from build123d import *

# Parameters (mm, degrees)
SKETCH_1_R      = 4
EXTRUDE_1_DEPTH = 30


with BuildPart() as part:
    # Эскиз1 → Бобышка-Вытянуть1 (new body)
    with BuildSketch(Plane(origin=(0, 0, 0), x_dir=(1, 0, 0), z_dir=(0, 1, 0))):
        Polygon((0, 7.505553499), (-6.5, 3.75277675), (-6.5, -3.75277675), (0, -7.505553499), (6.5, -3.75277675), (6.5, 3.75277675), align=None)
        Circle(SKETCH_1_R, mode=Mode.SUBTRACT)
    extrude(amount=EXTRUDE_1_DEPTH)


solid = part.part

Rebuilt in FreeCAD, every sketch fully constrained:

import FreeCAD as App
import Part
import Sketcher

V = App.Vector
Q = App.Units.Quantity


def add_polygon(sketch, points):
    """Adds a closed chain of lines whose ends are joined by coincident constraints."""
    first, n = sketch.GeometryCount, len(points)
    for a, b in zip(points, points[1:] + points[:1]):
        sketch.addGeometry(Part.LineSegment(App.Vector(*a, 0), App.Vector(*b, 0)), False)
    for i in range(n):
        sketch.addConstraint(Sketcher.Constraint("Coincident", first + i, 2, first + (i + 1) % n, 1))

doc = App.newDocument("Part")
body = doc.addObject("PartDesign::Body", "Body")

# Sketch on XZ plane
sketch1 = body.newObject("Sketcher::SketchObject", "Sketch")
sketch1.AttachmentSupport = (doc.getObject("XZ_Plane"), [""])
sketch1.MapMode = "FlatFace"
add_polygon(sketch1, [(0, -7.5), (-6.5, -3.8), (-6.5, 3.8), (0, 7.5), (6.5, 3.8), (6.5, -3.8)])  # lines 0-5
sketch1.addGeometry(Part.Circle(V(0, 0, 0), V(0, 0, 1), 4), False)  # 6
sketch1.addConstraint([
    Sketcher.Constraint("Vertical", 1),
    Sketcher.Constraint("Vertical", 4),
    Sketcher.Constraint("Coincident", 6, 3, -1, 1),
    Sketcher.Constraint("Symmetric", 0, 2, 3, 2, -1, 1),
    Sketcher.Constraint("Symmetric", 2, 2, 5, 2, -1, 1),
    Sketcher.Constraint("PointOnObject", 2, 2, -2),
    Sketcher.Constraint("Parallel", 2, 5),
    Sketcher.Constraint("Horizontal", 1, 2, 3, 2),
    Sketcher.Constraint("Diameter", 6, 8.0),
    Sketcher.Constraint("Angle", 0, Q("150 deg")),
    Sketcher.Constraint("DistanceX", 1, 2, 3, 2, 13.0),
    Sketcher.Constraint("DistanceY", 1, 1, 1, 2, 7.505554),
])
pad1 = body.newObject("PartDesign::Pad", "Pad")
pad1.Profile = sketch1
pad1.Length = 30
pad1.Reversed = True

doc.recompute()
